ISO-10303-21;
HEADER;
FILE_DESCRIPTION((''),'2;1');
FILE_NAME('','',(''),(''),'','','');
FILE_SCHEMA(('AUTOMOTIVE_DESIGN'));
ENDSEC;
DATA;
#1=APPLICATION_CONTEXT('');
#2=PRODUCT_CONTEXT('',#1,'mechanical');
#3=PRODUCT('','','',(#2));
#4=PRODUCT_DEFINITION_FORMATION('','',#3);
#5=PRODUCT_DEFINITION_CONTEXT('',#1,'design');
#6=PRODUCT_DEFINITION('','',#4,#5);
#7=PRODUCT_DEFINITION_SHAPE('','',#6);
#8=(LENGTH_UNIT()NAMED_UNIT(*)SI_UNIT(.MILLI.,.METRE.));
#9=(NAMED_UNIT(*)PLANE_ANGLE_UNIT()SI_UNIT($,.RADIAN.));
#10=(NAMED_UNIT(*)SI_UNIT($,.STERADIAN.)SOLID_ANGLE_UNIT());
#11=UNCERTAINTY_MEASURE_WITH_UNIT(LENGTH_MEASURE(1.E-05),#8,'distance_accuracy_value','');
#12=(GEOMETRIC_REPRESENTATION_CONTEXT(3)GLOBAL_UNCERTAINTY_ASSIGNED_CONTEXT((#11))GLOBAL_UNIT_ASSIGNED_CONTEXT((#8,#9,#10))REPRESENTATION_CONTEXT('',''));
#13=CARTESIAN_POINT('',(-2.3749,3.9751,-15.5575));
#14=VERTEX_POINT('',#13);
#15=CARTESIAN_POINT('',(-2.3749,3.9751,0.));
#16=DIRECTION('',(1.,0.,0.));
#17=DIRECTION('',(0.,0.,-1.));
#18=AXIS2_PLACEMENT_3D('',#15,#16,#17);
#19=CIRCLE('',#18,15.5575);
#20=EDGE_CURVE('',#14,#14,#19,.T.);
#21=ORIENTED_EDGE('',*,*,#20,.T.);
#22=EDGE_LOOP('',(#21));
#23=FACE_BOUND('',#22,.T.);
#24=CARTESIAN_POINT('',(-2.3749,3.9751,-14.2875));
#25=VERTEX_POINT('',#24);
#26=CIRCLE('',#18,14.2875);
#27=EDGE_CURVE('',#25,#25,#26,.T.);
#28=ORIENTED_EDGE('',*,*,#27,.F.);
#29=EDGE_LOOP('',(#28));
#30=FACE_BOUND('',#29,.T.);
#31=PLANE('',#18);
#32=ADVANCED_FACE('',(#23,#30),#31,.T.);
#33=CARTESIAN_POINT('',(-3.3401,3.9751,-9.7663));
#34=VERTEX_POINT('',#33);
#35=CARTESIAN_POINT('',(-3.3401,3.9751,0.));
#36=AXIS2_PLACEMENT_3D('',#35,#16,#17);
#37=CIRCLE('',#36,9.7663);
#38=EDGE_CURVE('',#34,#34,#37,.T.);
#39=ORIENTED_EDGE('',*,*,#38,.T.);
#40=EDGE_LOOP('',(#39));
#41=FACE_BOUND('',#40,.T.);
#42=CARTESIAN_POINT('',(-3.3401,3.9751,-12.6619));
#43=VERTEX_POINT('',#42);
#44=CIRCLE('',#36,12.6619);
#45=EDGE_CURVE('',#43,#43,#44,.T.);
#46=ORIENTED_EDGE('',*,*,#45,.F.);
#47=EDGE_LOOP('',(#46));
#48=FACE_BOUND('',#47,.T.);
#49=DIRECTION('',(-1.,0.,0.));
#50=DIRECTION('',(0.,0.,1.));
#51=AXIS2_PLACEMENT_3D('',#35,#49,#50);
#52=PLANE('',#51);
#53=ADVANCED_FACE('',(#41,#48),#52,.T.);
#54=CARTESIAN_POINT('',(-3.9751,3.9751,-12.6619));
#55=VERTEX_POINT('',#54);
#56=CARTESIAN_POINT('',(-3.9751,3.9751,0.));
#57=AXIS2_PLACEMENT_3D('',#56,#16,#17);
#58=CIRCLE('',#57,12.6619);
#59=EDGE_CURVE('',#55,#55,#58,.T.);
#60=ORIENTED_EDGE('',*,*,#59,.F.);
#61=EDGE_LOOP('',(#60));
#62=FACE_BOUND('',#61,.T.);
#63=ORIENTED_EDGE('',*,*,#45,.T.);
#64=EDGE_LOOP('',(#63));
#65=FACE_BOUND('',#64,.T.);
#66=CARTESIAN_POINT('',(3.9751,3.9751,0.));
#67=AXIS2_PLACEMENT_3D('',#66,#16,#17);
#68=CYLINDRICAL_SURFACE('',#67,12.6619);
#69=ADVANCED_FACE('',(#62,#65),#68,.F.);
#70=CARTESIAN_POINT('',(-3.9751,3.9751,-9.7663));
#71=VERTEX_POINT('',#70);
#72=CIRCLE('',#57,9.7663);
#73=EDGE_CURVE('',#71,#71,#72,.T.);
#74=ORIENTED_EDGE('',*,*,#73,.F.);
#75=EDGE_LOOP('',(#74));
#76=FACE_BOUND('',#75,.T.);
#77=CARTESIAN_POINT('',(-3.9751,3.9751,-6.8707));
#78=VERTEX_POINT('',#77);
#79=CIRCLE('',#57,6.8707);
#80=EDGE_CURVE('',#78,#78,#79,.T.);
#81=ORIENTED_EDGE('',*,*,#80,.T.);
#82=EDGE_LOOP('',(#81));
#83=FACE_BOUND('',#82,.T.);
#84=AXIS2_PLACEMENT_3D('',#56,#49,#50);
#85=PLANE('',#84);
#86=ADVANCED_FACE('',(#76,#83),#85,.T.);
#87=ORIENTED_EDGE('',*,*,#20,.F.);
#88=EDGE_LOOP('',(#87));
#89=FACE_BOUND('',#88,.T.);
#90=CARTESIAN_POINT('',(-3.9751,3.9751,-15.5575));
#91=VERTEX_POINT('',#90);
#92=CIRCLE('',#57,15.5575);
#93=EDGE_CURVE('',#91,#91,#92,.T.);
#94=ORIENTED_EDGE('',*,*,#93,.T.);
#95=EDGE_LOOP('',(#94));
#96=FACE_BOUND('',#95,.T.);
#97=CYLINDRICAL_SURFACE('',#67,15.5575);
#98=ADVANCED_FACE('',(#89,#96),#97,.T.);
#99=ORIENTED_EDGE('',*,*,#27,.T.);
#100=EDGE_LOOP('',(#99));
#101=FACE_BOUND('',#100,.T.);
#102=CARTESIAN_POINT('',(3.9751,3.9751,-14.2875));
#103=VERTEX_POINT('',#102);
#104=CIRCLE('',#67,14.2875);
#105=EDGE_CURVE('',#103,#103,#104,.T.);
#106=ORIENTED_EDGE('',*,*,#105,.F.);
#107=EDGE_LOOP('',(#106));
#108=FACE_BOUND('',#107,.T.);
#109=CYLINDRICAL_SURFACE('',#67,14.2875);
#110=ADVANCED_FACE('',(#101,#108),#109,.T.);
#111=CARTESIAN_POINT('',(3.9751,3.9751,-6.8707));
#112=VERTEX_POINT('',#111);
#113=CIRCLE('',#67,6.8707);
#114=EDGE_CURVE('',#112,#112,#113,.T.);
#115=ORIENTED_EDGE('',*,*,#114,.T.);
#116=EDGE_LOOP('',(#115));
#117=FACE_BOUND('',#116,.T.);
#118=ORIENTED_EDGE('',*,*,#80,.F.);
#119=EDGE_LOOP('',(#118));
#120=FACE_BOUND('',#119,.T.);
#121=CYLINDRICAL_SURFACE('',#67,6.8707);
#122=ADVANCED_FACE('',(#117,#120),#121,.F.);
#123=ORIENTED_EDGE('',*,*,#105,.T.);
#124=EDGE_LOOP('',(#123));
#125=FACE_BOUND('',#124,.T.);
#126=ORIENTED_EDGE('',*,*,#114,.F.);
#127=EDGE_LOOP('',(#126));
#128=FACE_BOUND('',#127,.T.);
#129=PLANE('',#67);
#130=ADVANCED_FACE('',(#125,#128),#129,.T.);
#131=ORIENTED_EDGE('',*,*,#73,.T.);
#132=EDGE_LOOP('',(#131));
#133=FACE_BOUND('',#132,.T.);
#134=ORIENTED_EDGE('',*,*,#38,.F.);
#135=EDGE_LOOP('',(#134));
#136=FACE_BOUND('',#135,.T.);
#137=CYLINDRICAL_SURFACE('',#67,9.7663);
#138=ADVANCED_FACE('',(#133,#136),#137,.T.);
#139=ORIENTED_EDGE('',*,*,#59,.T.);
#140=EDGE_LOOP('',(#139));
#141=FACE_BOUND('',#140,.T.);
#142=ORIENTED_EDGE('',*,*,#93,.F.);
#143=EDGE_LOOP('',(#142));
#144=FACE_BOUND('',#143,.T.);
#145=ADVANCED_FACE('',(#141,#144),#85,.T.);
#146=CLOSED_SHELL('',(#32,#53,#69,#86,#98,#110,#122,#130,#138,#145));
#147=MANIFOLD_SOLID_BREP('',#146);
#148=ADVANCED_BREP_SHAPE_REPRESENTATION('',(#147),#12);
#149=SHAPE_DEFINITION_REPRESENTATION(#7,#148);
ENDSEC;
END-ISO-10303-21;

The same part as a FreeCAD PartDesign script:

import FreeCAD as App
import Part
import Sketcher
Q = App.Units.Quantity

doc = App.newDocument("Part")
body = doc.addObject("PartDesign::Body", "Body")

sketch1 = body.newObject("Sketcher::SketchObject", "Sketch")
sketch1.AttachmentSupport = (doc.getObject("XY_Plane"), [""])
sketch1.MapMode = "FlatFace"
sketch1.addGeometry([
    Part.LineSegment(App.Vector(6.9, 8, 0), App.Vector(6.9, 0, 0)),
    Part.LineSegment(App.Vector(6.9, 0, 0), App.Vector(14.3, 0, 0)),
    Part.LineSegment(App.Vector(14.3, 0, 0), App.Vector(14.3, 6.3, 0)),
    Part.LineSegment(App.Vector(14.3, 6.3, 0), App.Vector(15.6, 6.3, 0)),
    Part.LineSegment(App.Vector(15.6, 6.3, 0), App.Vector(15.6, 8, 0)),
    Part.LineSegment(App.Vector(15.6, 8, 0), App.Vector(12.7, 8, 0)),
    Part.LineSegment(App.Vector(12.7, 8, 0), App.Vector(12.7, 7.3, 0)),
    Part.LineSegment(App.Vector(12.7, 7.3, 0), App.Vector(9.8, 7.3, 0)),
    Part.LineSegment(App.Vector(9.8, 7.3, 0), App.Vector(9.8, 8, 0)),
    Part.LineSegment(App.Vector(9.8, 8, 0), App.Vector(6.9, 8, 0)),
], False)
sketch1.addConstraint([
    Sketcher.Constraint("Coincident", 0, 2, 1, 1),
    Sketcher.Constraint("Coincident", 1, 2, 2, 1),
    Sketcher.Constraint("Coincident", 2, 2, 3, 1),
    Sketcher.Constraint("Coincident", 3, 2, 4, 1),
    Sketcher.Constraint("Coincident", 4, 2, 5, 1),
    Sketcher.Constraint("Coincident", 5, 2, 6, 1),
    Sketcher.Constraint("Coincident", 6, 2, 7, 1),
    Sketcher.Constraint("Coincident", 7, 2, 8, 1),
    Sketcher.Constraint("Coincident", 8, 2, 9, 1),
    Sketcher.Constraint("Coincident", 9, 2, 0, 1),
    Sketcher.Constraint("Vertical", 0),
    Sketcher.Constraint("Horizontal", 1),
    Sketcher.Constraint("Vertical", 2),
    Sketcher.Constraint("Horizontal", 3),
    Sketcher.Constraint("Vertical", 4),
    Sketcher.Constraint("Horizontal", 5),
    Sketcher.Constraint("Vertical", 6),
    Sketcher.Constraint("Horizontal", 7),
    Sketcher.Constraint("Vertical", 8),
    Sketcher.Constraint("Horizontal", 9),
    Sketcher.Constraint("PointOnObject", 0, 2, -1),
    Sketcher.Constraint("Horizontal", 5, 2, 8, 2),
    Sketcher.Constraint("Equal", 5, 7),
    Sketcher.Constraint("Equal", 7, 9),
    Sketcher.Constraint("DistanceX", 3, 1, 3, 2, Q("0.05 in")),
    Sketcher.Constraint("DistanceY", 2, 1, 2, 2, Q("0.25 in")),
    Sketcher.Constraint("DistanceX", 1, 1, 1, 2, Q("0.292 in")),
    Sketcher.Constraint("DistanceY", 0, 2, 0, 1, Q("0.313 in")),
    Sketcher.Constraint("DistanceY", 6, 2, 6, 1, Q("0.025 in")),
    Sketcher.Constraint("DistanceX", -1, 1, 1, 2, Q("0.5625 in")),
])
revolution = body.newObject("PartDesign::Revolution", "Revolution")
revolution.Profile = sketch1
revolution.ReferenceAxis = (sketch1, ["V_Axis"])
revolution.Angle = 360
body2 = doc.addObject("PartDesign::Body", "Body001")
doc.recompute()

body.Placement = App.Placement(App.Vector(3.9751, 3.9751, 0), App.Rotation(App.Vector(0, 0, 1), 90))
boolean = body2.newObject("PartDesign::Boolean", "Boolean")
boolean.Type = "Fuse"
boolean.addObjects([body])

doc.recompute()
